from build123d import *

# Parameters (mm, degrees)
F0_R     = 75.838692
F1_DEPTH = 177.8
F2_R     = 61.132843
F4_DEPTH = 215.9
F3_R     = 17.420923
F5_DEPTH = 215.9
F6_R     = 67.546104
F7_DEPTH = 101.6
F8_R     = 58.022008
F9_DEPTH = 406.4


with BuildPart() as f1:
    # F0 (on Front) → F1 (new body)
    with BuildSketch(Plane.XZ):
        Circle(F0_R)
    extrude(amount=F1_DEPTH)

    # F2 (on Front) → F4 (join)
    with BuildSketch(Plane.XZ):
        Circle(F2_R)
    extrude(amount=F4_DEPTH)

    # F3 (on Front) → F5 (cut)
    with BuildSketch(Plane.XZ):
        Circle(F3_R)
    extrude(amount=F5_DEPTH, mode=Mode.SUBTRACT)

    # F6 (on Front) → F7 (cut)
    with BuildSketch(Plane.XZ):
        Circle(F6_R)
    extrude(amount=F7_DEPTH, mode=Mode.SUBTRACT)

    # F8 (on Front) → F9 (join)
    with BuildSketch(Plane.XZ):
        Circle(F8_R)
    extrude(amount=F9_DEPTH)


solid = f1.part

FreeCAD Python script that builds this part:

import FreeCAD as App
import Part
import Sketcher
from FreeCAD import Vector
Q = App.Units.Quantity

doc = App.newDocument("Part")
body = doc.addObject("PartDesign::Body", "Body")

# Sketch on XZ plane
sketch1 = doc.addObject("Sketcher::SketchObject", "Sketch")
body.addObject(sketch1)
sketch1.AttachmentSupport = (doc.XZ_Plane, [""])
sketch1.MapMode = "FlatFace"
sketch1.addGeometry(Part.Circle(Vector(0, 0, 0), Vector(0, 0, 1), 76), False)
sketch1.addConstraint([
    Sketcher.Constraint("Coincident", 0, 3, -1, 1),
    Sketcher.Constraint("Diameter", 0, 151.677384),
])
pad1 = doc.addObject("PartDesign::Pad", "Pad")
body.addObject(pad1)
pad1.Profile = sketch1
pad1.Length = Q("7 in")

# Sketch on XZ plane
sketch2 = doc.addObject("Sketcher::SketchObject", "Sketch001")
body.addObject(sketch2)
sketch2.AttachmentSupport = (doc.XZ_Plane, [""])
sketch2.MapMode = "FlatFace"
sketch2.addGeometry(Part.Circle(Vector(0, 0, 0), Vector(0, 0, 1), 61), False)
sketch2.addConstraint([
    Sketcher.Constraint("Coincident", 0, 3, -1, 1),
    Sketcher.Constraint("Diameter", 0, 122.265686),
])
pad2 = doc.addObject("PartDesign::Pad", "Pad001")
body.addObject(pad2)
pad2.Profile = sketch2
pad2.Length = Q("8.5 in")

# Sketch on XZ plane
sketch3 = doc.addObject("Sketcher::SketchObject", "Sketch002")
body.addObject(sketch3)
sketch3.AttachmentSupport = (doc.XZ_Plane, [""])
sketch3.MapMode = "FlatFace"
sketch3.addGeometry(Part.Circle(Vector(0, 0, 0), Vector(0, 0, 1), 17), False)
sketch3.addConstraint([
    Sketcher.Constraint("Coincident", 0, 3, -1, 1),
    Sketcher.Constraint("Diameter", 0, 34.841846),
])
pocket1 = doc.addObject("PartDesign::Pocket", "Pocket")
body.addObject(pocket1)
pocket1.Profile = sketch3
pocket1.Length = Q("8.5 in")
pocket1.Reversed = True

# Sketch on XZ plane
sketch4 = doc.addObject("Sketcher::SketchObject", "Sketch003")
body.addObject(sketch4)
sketch4.AttachmentSupport = (doc.XZ_Plane, [""])
sketch4.MapMode = "FlatFace"
sketch4.addGeometry(Part.Circle(Vector(0, 0, 0), Vector(0, 0, 1), 68), False)
sketch4.addConstraint([
    Sketcher.Constraint("Coincident", 0, 3, -1, 1),
    Sketcher.Constraint("Diameter", 0, 135.092208),
])
pocket2 = doc.addObject("PartDesign::Pocket", "Pocket001")
body.addObject(pocket2)
pocket2.Profile = sketch4
pocket2.Length = Q("4 in")
pocket2.Reversed = True

# Sketch on XZ plane
sketch5 = doc.addObject("Sketcher::SketchObject", "Sketch004")
body.addObject(sketch5)
sketch5.AttachmentSupport = (doc.XZ_Plane, [""])
sketch5.MapMode = "FlatFace"
sketch5.addGeometry(Part.Circle(Vector(0, 0, 0), Vector(0, 0, 1), 58), False)
sketch5.addConstraint([
    Sketcher.Constraint("Coincident", 0, 3, -1, 1),
    Sketcher.Constraint("Diameter", 0, 116.044016),
])
pad3 = doc.addObject("PartDesign::Pad", "Pad002")
body.addObject(pad3)
pad3.Profile = sketch5
pad3.Length = Q("16 in")

doc.recompute()
